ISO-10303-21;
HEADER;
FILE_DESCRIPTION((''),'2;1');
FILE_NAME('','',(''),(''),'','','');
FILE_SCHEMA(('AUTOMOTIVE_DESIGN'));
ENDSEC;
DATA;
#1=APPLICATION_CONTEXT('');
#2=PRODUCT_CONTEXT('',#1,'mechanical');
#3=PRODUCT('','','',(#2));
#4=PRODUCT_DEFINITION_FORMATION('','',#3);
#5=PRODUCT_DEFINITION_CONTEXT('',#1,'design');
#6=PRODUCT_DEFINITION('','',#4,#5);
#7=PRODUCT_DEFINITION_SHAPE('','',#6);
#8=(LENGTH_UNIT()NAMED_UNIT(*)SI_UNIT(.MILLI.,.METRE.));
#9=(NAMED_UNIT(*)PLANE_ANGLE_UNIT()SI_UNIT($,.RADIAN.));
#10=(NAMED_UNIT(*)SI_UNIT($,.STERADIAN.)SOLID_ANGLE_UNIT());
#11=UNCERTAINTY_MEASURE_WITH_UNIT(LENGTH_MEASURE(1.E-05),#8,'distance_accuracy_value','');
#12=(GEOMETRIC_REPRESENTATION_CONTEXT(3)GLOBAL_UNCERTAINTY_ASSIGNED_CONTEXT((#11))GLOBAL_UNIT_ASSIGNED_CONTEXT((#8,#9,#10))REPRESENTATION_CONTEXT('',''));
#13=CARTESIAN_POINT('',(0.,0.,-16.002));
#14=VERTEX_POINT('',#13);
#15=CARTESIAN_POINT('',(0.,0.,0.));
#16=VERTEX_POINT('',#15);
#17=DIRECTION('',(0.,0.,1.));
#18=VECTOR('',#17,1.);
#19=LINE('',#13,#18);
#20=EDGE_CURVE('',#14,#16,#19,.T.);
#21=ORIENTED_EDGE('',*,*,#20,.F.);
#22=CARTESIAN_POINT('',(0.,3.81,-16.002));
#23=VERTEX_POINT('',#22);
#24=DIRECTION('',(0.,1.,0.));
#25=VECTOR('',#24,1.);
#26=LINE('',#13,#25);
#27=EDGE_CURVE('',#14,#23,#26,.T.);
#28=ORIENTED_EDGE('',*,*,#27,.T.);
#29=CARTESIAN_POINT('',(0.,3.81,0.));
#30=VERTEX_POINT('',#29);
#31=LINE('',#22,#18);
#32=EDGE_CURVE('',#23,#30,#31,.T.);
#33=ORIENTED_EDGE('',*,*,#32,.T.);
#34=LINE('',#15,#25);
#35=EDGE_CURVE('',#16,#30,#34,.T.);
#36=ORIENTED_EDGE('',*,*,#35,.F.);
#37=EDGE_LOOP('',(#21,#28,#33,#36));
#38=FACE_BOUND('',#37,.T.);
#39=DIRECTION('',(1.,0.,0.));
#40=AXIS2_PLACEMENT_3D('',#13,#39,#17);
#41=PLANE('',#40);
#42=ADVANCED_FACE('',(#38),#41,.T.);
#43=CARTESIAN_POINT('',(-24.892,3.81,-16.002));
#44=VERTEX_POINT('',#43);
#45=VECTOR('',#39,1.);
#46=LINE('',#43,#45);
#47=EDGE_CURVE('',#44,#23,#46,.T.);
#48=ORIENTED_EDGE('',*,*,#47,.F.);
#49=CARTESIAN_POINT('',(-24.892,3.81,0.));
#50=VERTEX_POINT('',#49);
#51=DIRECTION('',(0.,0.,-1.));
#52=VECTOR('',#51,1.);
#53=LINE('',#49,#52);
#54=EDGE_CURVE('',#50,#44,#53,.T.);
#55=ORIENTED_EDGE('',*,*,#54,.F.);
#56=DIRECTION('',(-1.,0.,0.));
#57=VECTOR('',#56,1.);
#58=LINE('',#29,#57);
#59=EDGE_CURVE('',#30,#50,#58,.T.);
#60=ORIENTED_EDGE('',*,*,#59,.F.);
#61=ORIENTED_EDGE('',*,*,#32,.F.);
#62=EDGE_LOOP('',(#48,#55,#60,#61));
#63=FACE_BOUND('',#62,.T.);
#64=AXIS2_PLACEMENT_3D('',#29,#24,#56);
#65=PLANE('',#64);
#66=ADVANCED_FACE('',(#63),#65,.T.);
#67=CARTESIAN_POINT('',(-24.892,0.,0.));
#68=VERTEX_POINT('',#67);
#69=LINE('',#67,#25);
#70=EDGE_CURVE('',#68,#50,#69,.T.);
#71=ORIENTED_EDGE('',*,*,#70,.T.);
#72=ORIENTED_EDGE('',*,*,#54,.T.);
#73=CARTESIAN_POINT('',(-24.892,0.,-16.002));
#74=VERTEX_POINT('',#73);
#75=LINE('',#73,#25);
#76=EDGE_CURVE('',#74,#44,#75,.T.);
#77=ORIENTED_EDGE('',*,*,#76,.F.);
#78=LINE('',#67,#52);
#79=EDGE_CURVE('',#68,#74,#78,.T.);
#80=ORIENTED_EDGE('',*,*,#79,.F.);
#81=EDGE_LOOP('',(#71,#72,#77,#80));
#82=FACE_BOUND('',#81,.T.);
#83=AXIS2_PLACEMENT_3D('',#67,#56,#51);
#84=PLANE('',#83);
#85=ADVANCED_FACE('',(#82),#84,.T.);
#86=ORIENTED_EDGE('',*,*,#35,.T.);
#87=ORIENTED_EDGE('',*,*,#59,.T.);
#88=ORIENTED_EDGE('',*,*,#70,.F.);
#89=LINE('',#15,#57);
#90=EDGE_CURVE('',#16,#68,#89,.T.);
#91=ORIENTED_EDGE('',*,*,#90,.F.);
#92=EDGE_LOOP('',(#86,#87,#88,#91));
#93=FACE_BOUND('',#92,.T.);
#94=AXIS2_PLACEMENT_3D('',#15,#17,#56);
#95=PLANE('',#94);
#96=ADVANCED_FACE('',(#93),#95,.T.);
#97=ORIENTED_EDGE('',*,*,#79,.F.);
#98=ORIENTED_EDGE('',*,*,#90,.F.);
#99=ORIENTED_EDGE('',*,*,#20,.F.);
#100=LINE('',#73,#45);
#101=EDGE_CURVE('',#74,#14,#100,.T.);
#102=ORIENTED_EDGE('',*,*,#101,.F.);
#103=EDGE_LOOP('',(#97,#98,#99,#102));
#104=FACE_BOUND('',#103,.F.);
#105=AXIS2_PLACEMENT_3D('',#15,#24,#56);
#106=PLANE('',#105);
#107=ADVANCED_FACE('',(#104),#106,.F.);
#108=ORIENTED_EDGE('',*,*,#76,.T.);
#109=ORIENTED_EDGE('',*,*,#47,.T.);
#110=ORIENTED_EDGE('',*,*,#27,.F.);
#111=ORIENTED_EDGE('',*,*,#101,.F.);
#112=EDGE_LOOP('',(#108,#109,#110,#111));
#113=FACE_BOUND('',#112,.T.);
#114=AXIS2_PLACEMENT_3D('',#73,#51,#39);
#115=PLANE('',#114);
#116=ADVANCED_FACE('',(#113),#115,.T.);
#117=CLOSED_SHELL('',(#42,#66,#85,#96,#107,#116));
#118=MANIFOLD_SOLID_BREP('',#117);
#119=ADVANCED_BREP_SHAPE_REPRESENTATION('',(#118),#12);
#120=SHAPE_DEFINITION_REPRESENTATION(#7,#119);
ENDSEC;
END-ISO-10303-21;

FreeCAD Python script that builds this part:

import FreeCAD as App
import Part
import Sketcher
from FreeCAD import Vector
Q = App.Units.Quantity


def add_polygon(sketch, points):
    """Adds a closed chain of lines whose ends are joined by coincident constraints."""
    first, n = sketch.GeometryCount, len(points)
    for a, b in zip(points, points[1:] + points[:1]):
        sketch.addGeometry(Part.LineSegment(App.Vector(*a, 0), App.Vector(*b, 0)), False)
    for i in range(n):
        sketch.addConstraint(Sketcher.Constraint("Coincident", first + i, 2, first + (i + 1) % n, 1))

doc = App.newDocument("Part")
body = doc.addObject("PartDesign::Body", "Body")

sketch1 = body.newObject("Sketcher::SketchObject", "Sketch")
sketch1.AttachmentSupport = (doc.getObject("XZ_Plane"), [""])
sketch1.MapMode = "FlatFace"
add_polygon(sketch1, [(-25, 0), (0, 0), (0, -16), (-25, -16)])
sketch1.addConstraint(Sketcher.Constraint("Horizontal", 0))
sketch1.addConstraint(Sketcher.Constraint("Vertical", 1))
sketch1.addConstraint(Sketcher.Constraint("Horizontal", 2))
sketch1.addConstraint(Sketcher.Constraint("Vertical", 3))
sketch1.addConstraint(Sketcher.Constraint("Coincident", 0, 2, -1, 1))
sketch1.addConstraint(Sketcher.Constraint("DistanceX", 0, 1, 0, 2, Q("0.98 in")))
sketch1.addConstraint(Sketcher.Constraint("DistanceY", 1, 2, 1, 1, Q("0.63 in")))
pad1 = body.newObject("PartDesign::Pad", "Pad")
pad1.Profile = sketch1
pad1.Length = Q("0.15 in")
pad1.Reversed = True

doc.recompute()
